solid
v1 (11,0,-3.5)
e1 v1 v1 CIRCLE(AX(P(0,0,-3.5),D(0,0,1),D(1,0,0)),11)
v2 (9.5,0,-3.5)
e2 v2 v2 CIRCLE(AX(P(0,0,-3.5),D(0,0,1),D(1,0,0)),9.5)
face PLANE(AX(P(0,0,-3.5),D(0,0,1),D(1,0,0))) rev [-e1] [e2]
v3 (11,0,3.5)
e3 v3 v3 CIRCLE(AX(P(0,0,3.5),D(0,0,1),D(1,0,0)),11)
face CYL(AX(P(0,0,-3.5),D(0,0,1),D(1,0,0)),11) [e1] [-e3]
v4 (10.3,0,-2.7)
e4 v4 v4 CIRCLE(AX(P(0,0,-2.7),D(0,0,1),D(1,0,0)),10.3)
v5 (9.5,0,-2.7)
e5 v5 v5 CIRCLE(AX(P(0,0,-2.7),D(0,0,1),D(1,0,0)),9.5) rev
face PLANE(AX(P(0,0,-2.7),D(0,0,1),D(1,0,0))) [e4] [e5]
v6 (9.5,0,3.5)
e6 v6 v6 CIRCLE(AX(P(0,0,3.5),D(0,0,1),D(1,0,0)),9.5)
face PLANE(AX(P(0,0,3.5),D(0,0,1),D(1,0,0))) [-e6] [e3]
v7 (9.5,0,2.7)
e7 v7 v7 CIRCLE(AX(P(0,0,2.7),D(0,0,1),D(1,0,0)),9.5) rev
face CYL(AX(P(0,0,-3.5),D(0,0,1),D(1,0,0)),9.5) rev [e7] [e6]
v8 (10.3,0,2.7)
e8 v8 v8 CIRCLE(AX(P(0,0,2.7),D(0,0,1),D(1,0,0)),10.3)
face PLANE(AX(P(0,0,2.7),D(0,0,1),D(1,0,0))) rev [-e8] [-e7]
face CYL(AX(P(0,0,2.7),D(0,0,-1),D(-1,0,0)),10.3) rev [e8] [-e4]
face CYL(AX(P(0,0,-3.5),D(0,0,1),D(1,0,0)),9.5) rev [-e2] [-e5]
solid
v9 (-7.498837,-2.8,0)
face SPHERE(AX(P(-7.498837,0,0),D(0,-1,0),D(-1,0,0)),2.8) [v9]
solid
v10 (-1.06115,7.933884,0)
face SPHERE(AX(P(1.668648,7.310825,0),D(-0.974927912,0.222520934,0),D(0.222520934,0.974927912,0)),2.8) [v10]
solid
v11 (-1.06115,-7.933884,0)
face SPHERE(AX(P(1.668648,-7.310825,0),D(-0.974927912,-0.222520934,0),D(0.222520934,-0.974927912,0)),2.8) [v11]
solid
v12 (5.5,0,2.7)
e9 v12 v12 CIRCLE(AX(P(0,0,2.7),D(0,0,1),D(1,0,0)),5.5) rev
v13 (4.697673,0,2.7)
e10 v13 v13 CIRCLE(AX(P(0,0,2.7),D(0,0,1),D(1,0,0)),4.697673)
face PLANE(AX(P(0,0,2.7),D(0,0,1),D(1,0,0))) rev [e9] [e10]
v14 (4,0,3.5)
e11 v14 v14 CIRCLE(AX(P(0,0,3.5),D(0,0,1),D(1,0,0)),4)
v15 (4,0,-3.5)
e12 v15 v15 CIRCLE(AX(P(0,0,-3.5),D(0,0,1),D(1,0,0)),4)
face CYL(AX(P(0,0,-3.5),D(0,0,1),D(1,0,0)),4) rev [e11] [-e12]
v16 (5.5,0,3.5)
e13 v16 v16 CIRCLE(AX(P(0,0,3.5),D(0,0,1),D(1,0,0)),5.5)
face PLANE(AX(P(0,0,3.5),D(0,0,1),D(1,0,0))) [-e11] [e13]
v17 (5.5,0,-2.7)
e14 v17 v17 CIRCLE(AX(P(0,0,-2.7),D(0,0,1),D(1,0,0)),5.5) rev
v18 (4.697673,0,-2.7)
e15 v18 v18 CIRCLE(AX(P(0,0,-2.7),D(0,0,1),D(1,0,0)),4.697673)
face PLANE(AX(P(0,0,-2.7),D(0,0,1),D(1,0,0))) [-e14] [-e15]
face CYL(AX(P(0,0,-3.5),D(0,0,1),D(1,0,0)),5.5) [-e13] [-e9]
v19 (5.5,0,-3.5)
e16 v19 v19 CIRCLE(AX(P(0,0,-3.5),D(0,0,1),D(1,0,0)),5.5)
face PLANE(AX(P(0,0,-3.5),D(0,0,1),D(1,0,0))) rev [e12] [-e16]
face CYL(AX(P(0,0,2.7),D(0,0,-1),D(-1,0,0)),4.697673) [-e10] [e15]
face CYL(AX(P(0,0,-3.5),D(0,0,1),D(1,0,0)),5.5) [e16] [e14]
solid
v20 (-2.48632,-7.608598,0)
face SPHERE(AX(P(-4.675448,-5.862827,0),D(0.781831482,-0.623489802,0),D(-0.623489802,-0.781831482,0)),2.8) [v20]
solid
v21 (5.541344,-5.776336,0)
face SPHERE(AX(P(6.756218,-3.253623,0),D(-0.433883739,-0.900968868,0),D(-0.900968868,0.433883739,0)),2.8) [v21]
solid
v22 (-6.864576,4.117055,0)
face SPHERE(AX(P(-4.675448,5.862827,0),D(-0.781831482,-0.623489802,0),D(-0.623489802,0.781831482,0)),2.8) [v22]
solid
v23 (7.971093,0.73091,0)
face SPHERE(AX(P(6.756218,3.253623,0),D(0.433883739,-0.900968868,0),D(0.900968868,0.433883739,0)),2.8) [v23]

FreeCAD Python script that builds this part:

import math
import FreeCAD as App
import Part
import Sketcher

doc = App.newDocument("Part")
params = doc.addObject("Spreadsheet::Sheet", "Params")
for row, (alias, value) in enumerate([
    ("sketch1_diameter", "22 mm"),
    ("sketch1_diameter2", "19 mm"),
    ("pad1_length", "3.5 mm"),
    ("pad1_length2", "3.5 mm"),
    ("sketch2_diameter", "11 mm"),
    ("sketch2_diameter2", "8 mm"),
    ("pad2_length", "3.5 mm"),
    ("pad2_length2", "3.5 mm"),
    ("sketch3_diameter", "20.6 mm"),
    ("pad3_length", "2.7 mm"),
    ("pad3_length2", "2.7 mm"),
    ("sketch4_radius", "2.8 mm"),
    ("revolution_angle", "360 deg"),
    ("sketch5_radius", "2.8 mm"),
    ("revolution2_angle", "360 deg"),
    ("sketch6_radius", "2.8 mm"),
    ("revolution3_angle", "360 deg"),
    ("sketch7_radius", "2.8 mm"),
    ("revolution4_angle", "360 deg"),
    ("sketch8_radius", "2.8 mm"),
    ("revolution5_angle", "360 deg"),
    ("sketch9_radius", "2.8 mm"),
    ("revolution6_angle", "360 deg"),
    ("sketch10_radius", "2.8 mm"),
    ("revolution7_angle", "360 deg"),
], start=1):
    params.set(f"A{row}", alias)
    params.set(f"B{row}", "=" + value)
    params.setAlias(f"B{row}", alias)

body = doc.addObject("PartDesign::Body", "Body")

sketch1 = body.newObject("Sketcher::SketchObject", "Sketch")
sketch1.AttachmentSupport = (doc.getObject("XY_Plane"), [""])
sketch1.MapMode = "FlatFace"
sketch1.addGeometry([
    Part.Circle(App.Vector(0, 0, 0), App.Vector(0, 0, 1), 11),
    Part.Circle(App.Vector(0, 0, 0), App.Vector(0, 0, 1), 10),
], False)
sketch1.addConstraint([
    Sketcher.Constraint("Coincident", 0, 3, -1, 1),
    Sketcher.Constraint("Coincident", 1, 3, -1, 1),
    Sketcher.Constraint("Diameter", 0, 22.0),
    Sketcher.Constraint("Diameter", 1, 19.0),
])
sketch1.setExpression("Constraints[2]", "Params.sketch1_diameter")
sketch1.setExpression("Constraints[3]", "Params.sketch1_diameter2")
pad1 = body.newObject("PartDesign::Pad", "Pad")
pad1.Profile = sketch1
pad1.Type = "TwoLengths"
pad1.setExpression("Length", "Params.pad1_length")
pad1.setExpression("Length2", "Params.pad1_length2")
body2 = doc.addObject("PartDesign::Body", "Body001")

sketch2 = body2.newObject("Sketcher::SketchObject", "Sketch001")
sketch2.AttachmentSupport = (doc.getObject("XY_Plane001"), [""])
sketch2.MapMode = "FlatFace"
sketch2.addGeometry([
    Part.Circle(App.Vector(0, 0, 0), App.Vector(0, 0, 1), 5.5),
    Part.Circle(App.Vector(0, 0, 0), App.Vector(0, 0, 1), 4),
], False)
sketch2.addConstraint([
    Sketcher.Constraint("Coincident", 0, 3, -1, 1),
    Sketcher.Constraint("Coincident", 1, 3, -1, 1),
    Sketcher.Constraint("Diameter", 0, 11.0),
    Sketcher.Constraint("Diameter", 1, 8.0),
])
sketch2.setExpression("Constraints[2]", "Params.sketch2_diameter")
sketch2.setExpression("Constraints[3]", "Params.sketch2_diameter2")
pad2 = body2.newObject("PartDesign::Pad", "Pad001")
pad2.Profile = sketch2
pad2.Type = "TwoLengths"
pad2.setExpression("Length", "Params.pad2_length")
pad2.setExpression("Length2", "Params.pad2_length2")
body3 = doc.addObject("PartDesign::Body", "Body002")

sketch3 = body3.newObject("Sketcher::SketchObject", "Sketch002")
sketch3.AttachmentSupport = (doc.getObject("XY_Plane002"), [""])
sketch3.MapMode = "FlatFace"
sketch3.addGeometry([
    Part.Circle(App.Vector(0, 0, 0), App.Vector(0, 0, 1), 10.3),
    Part.Circle(App.Vector(0, 0, 0), App.Vector(0, 0, 1), 4.7),
], False)
sketch3.addConstraint([
    Sketcher.Constraint("Coincident", 0, 3, -1, 1),
    Sketcher.Constraint("Coincident", 1, 3, -1, 1),
    Sketcher.Constraint("Diameter", 0, 20.6),
    Sketcher.Constraint("Diameter", 1, 9.395347),
])
sketch3.setExpression("Constraints[2]", "Params.sketch3_diameter")
pad3 = body3.newObject("PartDesign::Pad", "Pad002")
pad3.Profile = sketch3
pad3.Type = "TwoLengths"
pad3.setExpression("Length", "Params.pad3_length")
pad3.setExpression("Length2", "Params.pad3_length2")
doc.recompute()

body4 = doc.addObject("PartDesign::Body", "Body003")
body4.BaseFeature = body3
boolean = body.newObject("PartDesign::Boolean", "Boolean")
boolean.Type = "Cut"
boolean.addObjects([body4])
doc.recompute()

boolean2 = body2.newObject("PartDesign::Boolean", "Boolean001")
boolean2.Type = "Cut"
boolean2.addObjects([body3])
body5 = doc.addObject("PartDesign::Body", "Body004")

sketch4 = body5.newObject("Sketcher::SketchObject", "Sketch003")
sketch4.AttachmentSupport = (doc.getObject("XY_Plane004"), [""])
sketch4.MapMode = "FlatFace"
sketch4.addGeometry([
    Part.LineSegment(App.Vector(-7.5, 2.8, 0), App.Vector(-7.5, -2.8, 0)),
    Part.ArcOfCircle(Part.Circle(App.Vector(-7.5, 0, 0), App.Vector(0, 0, 1), 2.8), math.radians(-90), math.radians(90)),
], False)
sketch4.addGeometry(Part.LineSegment(App.Vector(-7.5, -2.8, 0), App.Vector(-7.5, 2.8, 0)), True)
sketch4.addConstraint([
    Sketcher.Constraint("Coincident", 0, 1, 1, 2),
    Sketcher.Constraint("Coincident", 1, 1, 0, 2),
    Sketcher.Constraint("Vertical", 0),
    Sketcher.Constraint("Vertical", 2),
    Sketcher.Constraint("Coincident", 2, 1, 1, 1),
    Sketcher.Constraint("PointOnObject", 1, 3, -1),
    Sketcher.Constraint("Vertical", 1, 3, 0, 1),
    Sketcher.Constraint("Equal", 0, 2),
    Sketcher.Constraint("Radius", 1, 2.8),
    Sketcher.Constraint("DistanceX", 1, 3, -1, 1, 7.498837),
])
sketch4.setExpression("Constraints[8]", "Params.sketch4_radius")
revolution = body5.newObject("PartDesign::Revolution", "Revolution")
revolution.Profile = sketch4
revolution.ReferenceAxis = (sketch4, ["Axis0"])
revolution.setExpression("Angle", "Params.revolution_angle")
body6 = doc.addObject("PartDesign::Body", "Body005")

sketch5 = body6.newObject("Sketcher::SketchObject", "Sketch004")
sketch5.AttachmentSupport = (doc.getObject("XY_Plane005"), [""])
sketch5.MapMode = "FlatFace"
sketch5.addGeometry([
    Part.LineSegment(App.Vector(-4.7, 5.9, 0), App.Vector(-6.9, 4.1, 0)),
    Part.ArcOfCircle(Part.Circle(App.Vector(-4.7, 5.9, 0), App.Vector(0, 0, 1), 2.8), math.radians(-141), math.radians(39)),
    Part.LineSegment(App.Vector(-2.5, 7.6, 0), App.Vector(-4.7, 5.9, 0)),
], False)
sketch5.addGeometry(Part.LineSegment(App.Vector(-6.9, 4.1, 0), App.Vector(-2.5, 7.6, 0)), True)
sketch5.addConstraint([
    Sketcher.Constraint("Coincident", 0, 2, 1, 1),
    Sketcher.Constraint("Coincident", 1, 2, 2, 1),
    Sketcher.Constraint("Coincident", 2, 2, 0, 1),
    Sketcher.Constraint("Coincident", 2, 2, 1, 3),
    Sketcher.Constraint("Coincident", 3, 1, 0, 2),
    Sketcher.Constraint("Coincident", 3, 2, 1, 2),
    Sketcher.Constraint("Parallel", 0, 2),
    Sketcher.Constraint("Radius", 1, 2.8),
    Sketcher.Constraint("DistanceY", -1, 1, 1, 2, 7.608598),
    Sketcher.Constraint("DistanceX", 1, 3, -1, 1, 4.675448),
    Sketcher.Constraint("DistanceX", 1, 2, -1, 1, 2.48632),
])
sketch5.setExpression("Constraints[7]", "Params.sketch5_radius")
revolution2 = body6.newObject("PartDesign::Revolution", "Revolution001")
revolution2.Profile = sketch5
revolution2.ReferenceAxis = (sketch5, ["Axis0"])
revolution2.setExpression("Angle", "Params.revolution2_angle")
body7 = doc.addObject("PartDesign::Body", "Body006")

sketch6 = body7.newObject("Sketcher::SketchObject", "Sketch005")
sketch6.AttachmentSupport = (doc.getObject("XY_Plane006"), [""])
sketch6.MapMode = "FlatFace"
sketch6.addGeometry([
    Part.ArcOfCircle(Part.Circle(App.Vector(1.7, 7.3, 0), App.Vector(0, 0, 1), 2.8), math.radians(167), math.radians(347)),
    Part.LineSegment(App.Vector(4.4, 6.7, 0), App.Vector(-1.1, 7.9, 0)),
], False)
sketch6.addGeometry(Part.LineSegment(App.Vector(-1.1, 7.9, 0), App.Vector(4.4, 6.7, 0)), True)
sketch6.addConstraint([
    Sketcher.Constraint("Coincident", 0, 1, 1, 2),
    Sketcher.Constraint("Coincident", 1, 1, 0, 2),
    Sketcher.Constraint("Coincident", 2, 1, 0, 1),
    Sketcher.Constraint("Coincident", 2, 2, 1, 1),
    Sketcher.Constraint("Radius", 0, 2.8),
    Sketcher.Constraint("DistanceX", 0, 1, 0, 3, 2.729798),
    Sketcher.Constraint("DistanceX", 0, 3, 1, 1, 2.729798),
    Sketcher.Constraint("DistanceX", -1, 1, 0, 3, 1.668648),
    Sketcher.Constraint("DistanceY", -1, 1, 0, 3, 7.310825),
])
sketch6.setExpression("Constraints[4]", "Params.sketch6_radius")
revolution3 = body7.newObject("PartDesign::Revolution", "Revolution002")
revolution3.Profile = sketch6
revolution3.ReferenceAxis = (sketch6, ["Axis0"])
revolution3.setExpression("Angle", "Params.revolution3_angle")
body8 = doc.addObject("PartDesign::Body", "Body007")

sketch7 = body8.newObject("Sketcher::SketchObject", "Sketch006")
sketch7.AttachmentSupport = (doc.getObject("XY_Plane007"), [""])
sketch7.MapMode = "FlatFace"
sketch7.addGeometry([
    Part.LineSegment(App.Vector(6.8, 3.3, 0), App.Vector(5.5, 5.8, 0)),
    Part.ArcOfCircle(Part.Circle(App.Vector(6.8, 3.3, 0), App.Vector(0, 0, 1), 2.8), math.radians(116), math.radians(296)),
    Part.LineSegment(App.Vector(8, 0.7, 0), App.Vector(6.8, 3.3, 0)),
], False)
sketch7.addGeometry(Part.LineSegment(App.Vector(8, 0.7, 0), App.Vector(5.5, 5.8, 0)), True)
sketch7.addConstraint([
    Sketcher.Constraint("Coincident", 0, 2, 1, 1),
    Sketcher.Constraint("Coincident", 1, 2, 2, 1),
    Sketcher.Constraint("Coincident", 2, 2, 0, 1),
    Sketcher.Constraint("Coincident", 2, 2, 1, 3),
    Sketcher.Constraint("Coincident", 3, 1, 1, 2),
    Sketcher.Constraint("Coincident", 3, 2, 0, 2),
    Sketcher.Constraint("Parallel", 0, 2),
    Sketcher.Constraint("Radius", 1, 2.8),
    Sketcher.Constraint("DistanceX", -1, 1, 1, 3, 6.756218),
    Sketcher.Constraint("DistanceY", -1, 1, 1, 2, 0.73091),
    Sketcher.Constraint("DistanceX", 0, 2, 1, 2, 2.429749),
])
sketch7.setExpression("Constraints[7]", "Params.sketch7_radius")
revolution4 = body8.newObject("PartDesign::Revolution", "Revolution003")
revolution4.Profile = sketch7
revolution4.ReferenceAxis = (sketch7, ["Axis0"])
revolution4.setExpression("Angle", "Params.revolution4_angle")
body9 = doc.addObject("PartDesign::Body", "Body008")

sketch8 = body9.newObject("Sketcher::SketchObject", "Sketch007")
sketch8.AttachmentSupport = (doc.getObject("XY_Plane008"), [""])
sketch8.MapMode = "FlatFace"
sketch8.addGeometry([
    Part.LineSegment(App.Vector(6.8, -3.3, 0), App.Vector(8, -0.7, 0)),
    Part.ArcOfCircle(Part.Circle(App.Vector(6.8, -3.3, 0), App.Vector(0, 0, 1), 2.8), math.radians(64), math.radians(244)),
    Part.LineSegment(App.Vector(5.5, -5.8, 0), App.Vector(6.8, -3.3, 0)),
], False)
sketch8.addGeometry(Part.LineSegment(App.Vector(5.5, -5.8, 0), App.Vector(8, -0.7, 0)), True)
sketch8.addConstraint([
    Sketcher.Constraint("Coincident", 0, 2, 1, 1),
    Sketcher.Constraint("Coincident", 1, 2, 2, 1),
    Sketcher.Constraint("Coincident", 2, 2, 0, 1),
    Sketcher.Constraint("Coincident", 2, 2, 1, 3),
    Sketcher.Constraint("Coincident", 3, 1, 1, 2),
    Sketcher.Constraint("Coincident", 3, 2, 0, 2),
    Sketcher.Constraint("Parallel", 0, 2),
    Sketcher.Constraint("Radius", 1, 2.8),
    Sketcher.Constraint("DistanceX", -1, 1, 1, 3, 6.756218),
    Sketcher.Constraint("DistanceY", 0, 2, -1, 1, 0.73091),
    Sketcher.Constraint("DistanceX", 1, 2, 0, 2, 2.429749),
])
sketch8.setExpression("Constraints[7]", "Params.sketch8_radius")
revolution5 = body9.newObject("PartDesign::Revolution", "Revolution004")
revolution5.Profile = sketch8
revolution5.ReferenceAxis = (sketch8, ["Axis0"])
revolution5.setExpression("Angle", "Params.revolution5_angle")
body10 = doc.addObject("PartDesign::Body", "Body009")

sketch9 = body10.newObject("Sketcher::SketchObject", "Sketch008")
sketch9.AttachmentSupport = (doc.getObject("XY_Plane009"), [""])
sketch9.MapMode = "FlatFace"
sketch9.addGeometry([
    Part.ArcOfCircle(Part.Circle(App.Vector(1.7, -7.3, 0), App.Vector(0, 0, 1), 2.8), math.radians(13), math.radians(193)),
    Part.LineSegment(App.Vector(-1.1, -7.9, 0), App.Vector(4.4, -6.7, 0)),
], False)
sketch9.addGeometry(Part.LineSegment(App.Vector(-1.1, -7.9, 0), App.Vector(4.4, -6.7, 0)), True)
sketch9.addConstraint([
    Sketcher.Constraint("Coincident", 0, 1, 1, 2),
    Sketcher.Constraint("Coincident", 1, 1, 0, 2),
    Sketcher.Constraint("Coincident", 2, 1, 1, 1),
    Sketcher.Constraint("Coincident", 2, 2, 0, 1),
    Sketcher.Constraint("Radius", 0, 2.8),
    Sketcher.Constraint("DistanceX", 0, 3, 0, 1, 2.729798),
    Sketcher.Constraint("DistanceX", 1, 1, 0, 3, 2.729798),
    Sketcher.Constraint("DistanceX", -1, 1, 0, 3, 1.668648),
    Sketcher.Constraint("DistanceY", 0, 3, -1, 1, 7.310825),
])
sketch9.setExpression("Constraints[4]", "Params.sketch9_radius")
revolution6 = body10.newObject("PartDesign::Revolution", "Revolution005")
revolution6.Profile = sketch9
revolution6.ReferenceAxis = (sketch9, ["Axis0"])
revolution6.setExpression("Angle", "Params.revolution6_angle")
body11 = doc.addObject("PartDesign::Body", "Body010")

sketch10 = body11.newObject("Sketcher::SketchObject", "Sketch009")
sketch10.AttachmentSupport = (doc.getObject("XY_Plane010"), [""])
sketch10.MapMode = "FlatFace"
sketch10.addGeometry([
    Part.LineSegment(App.Vector(-4.7, -5.9, 0), App.Vector(-2.5, -7.6, 0)),
    Part.ArcOfCircle(Part.Circle(App.Vector(-4.7, -5.9, 0), App.Vector(0, 0, 1), 2.8), math.radians(-39), math.radians(141)),
    Part.LineSegment(App.Vector(-6.9, -4.1, 0), App.Vector(-4.7, -5.9, 0)),
], False)
sketch10.addGeometry(Part.LineSegment(App.Vector(-2.5, -7.6, 0), App.Vector(-6.9, -4.1, 0)), True)
sketch10.addConstraint([
    Sketcher.Constraint("Coincident", 0, 2, 1, 1),
    Sketcher.Constraint("Coincident", 1, 2, 2, 1),
    Sketcher.Constraint("Coincident", 2, 2, 0, 1),
    Sketcher.Constraint("Coincident", 2, 2, 1, 3),
    Sketcher.Constraint("Coincident", 3, 1, 0, 2),
    Sketcher.Constraint("Coincident", 3, 2, 1, 2),
    Sketcher.Constraint("Parallel", 0, 2),
    Sketcher.Constraint("Radius", 1, 2.8),
    Sketcher.Constraint("DistanceY", 0, 2, -1, 1, 7.608598),
    Sketcher.Constraint("DistanceX", 1, 3, -1, 1, 4.675448),
    Sketcher.Constraint("DistanceX", 0, 2, -1, 1, 2.48632),
])
sketch10.setExpression("Constraints[7]", "Params.sketch10_radius")
revolution7 = body11.newObject("PartDesign::Revolution", "Revolution006")
revolution7.Profile = sketch10
revolution7.ReferenceAxis = (sketch10, ["Axis0"])
revolution7.setExpression("Angle", "Params.revolution7_angle")

doc.recompute()
